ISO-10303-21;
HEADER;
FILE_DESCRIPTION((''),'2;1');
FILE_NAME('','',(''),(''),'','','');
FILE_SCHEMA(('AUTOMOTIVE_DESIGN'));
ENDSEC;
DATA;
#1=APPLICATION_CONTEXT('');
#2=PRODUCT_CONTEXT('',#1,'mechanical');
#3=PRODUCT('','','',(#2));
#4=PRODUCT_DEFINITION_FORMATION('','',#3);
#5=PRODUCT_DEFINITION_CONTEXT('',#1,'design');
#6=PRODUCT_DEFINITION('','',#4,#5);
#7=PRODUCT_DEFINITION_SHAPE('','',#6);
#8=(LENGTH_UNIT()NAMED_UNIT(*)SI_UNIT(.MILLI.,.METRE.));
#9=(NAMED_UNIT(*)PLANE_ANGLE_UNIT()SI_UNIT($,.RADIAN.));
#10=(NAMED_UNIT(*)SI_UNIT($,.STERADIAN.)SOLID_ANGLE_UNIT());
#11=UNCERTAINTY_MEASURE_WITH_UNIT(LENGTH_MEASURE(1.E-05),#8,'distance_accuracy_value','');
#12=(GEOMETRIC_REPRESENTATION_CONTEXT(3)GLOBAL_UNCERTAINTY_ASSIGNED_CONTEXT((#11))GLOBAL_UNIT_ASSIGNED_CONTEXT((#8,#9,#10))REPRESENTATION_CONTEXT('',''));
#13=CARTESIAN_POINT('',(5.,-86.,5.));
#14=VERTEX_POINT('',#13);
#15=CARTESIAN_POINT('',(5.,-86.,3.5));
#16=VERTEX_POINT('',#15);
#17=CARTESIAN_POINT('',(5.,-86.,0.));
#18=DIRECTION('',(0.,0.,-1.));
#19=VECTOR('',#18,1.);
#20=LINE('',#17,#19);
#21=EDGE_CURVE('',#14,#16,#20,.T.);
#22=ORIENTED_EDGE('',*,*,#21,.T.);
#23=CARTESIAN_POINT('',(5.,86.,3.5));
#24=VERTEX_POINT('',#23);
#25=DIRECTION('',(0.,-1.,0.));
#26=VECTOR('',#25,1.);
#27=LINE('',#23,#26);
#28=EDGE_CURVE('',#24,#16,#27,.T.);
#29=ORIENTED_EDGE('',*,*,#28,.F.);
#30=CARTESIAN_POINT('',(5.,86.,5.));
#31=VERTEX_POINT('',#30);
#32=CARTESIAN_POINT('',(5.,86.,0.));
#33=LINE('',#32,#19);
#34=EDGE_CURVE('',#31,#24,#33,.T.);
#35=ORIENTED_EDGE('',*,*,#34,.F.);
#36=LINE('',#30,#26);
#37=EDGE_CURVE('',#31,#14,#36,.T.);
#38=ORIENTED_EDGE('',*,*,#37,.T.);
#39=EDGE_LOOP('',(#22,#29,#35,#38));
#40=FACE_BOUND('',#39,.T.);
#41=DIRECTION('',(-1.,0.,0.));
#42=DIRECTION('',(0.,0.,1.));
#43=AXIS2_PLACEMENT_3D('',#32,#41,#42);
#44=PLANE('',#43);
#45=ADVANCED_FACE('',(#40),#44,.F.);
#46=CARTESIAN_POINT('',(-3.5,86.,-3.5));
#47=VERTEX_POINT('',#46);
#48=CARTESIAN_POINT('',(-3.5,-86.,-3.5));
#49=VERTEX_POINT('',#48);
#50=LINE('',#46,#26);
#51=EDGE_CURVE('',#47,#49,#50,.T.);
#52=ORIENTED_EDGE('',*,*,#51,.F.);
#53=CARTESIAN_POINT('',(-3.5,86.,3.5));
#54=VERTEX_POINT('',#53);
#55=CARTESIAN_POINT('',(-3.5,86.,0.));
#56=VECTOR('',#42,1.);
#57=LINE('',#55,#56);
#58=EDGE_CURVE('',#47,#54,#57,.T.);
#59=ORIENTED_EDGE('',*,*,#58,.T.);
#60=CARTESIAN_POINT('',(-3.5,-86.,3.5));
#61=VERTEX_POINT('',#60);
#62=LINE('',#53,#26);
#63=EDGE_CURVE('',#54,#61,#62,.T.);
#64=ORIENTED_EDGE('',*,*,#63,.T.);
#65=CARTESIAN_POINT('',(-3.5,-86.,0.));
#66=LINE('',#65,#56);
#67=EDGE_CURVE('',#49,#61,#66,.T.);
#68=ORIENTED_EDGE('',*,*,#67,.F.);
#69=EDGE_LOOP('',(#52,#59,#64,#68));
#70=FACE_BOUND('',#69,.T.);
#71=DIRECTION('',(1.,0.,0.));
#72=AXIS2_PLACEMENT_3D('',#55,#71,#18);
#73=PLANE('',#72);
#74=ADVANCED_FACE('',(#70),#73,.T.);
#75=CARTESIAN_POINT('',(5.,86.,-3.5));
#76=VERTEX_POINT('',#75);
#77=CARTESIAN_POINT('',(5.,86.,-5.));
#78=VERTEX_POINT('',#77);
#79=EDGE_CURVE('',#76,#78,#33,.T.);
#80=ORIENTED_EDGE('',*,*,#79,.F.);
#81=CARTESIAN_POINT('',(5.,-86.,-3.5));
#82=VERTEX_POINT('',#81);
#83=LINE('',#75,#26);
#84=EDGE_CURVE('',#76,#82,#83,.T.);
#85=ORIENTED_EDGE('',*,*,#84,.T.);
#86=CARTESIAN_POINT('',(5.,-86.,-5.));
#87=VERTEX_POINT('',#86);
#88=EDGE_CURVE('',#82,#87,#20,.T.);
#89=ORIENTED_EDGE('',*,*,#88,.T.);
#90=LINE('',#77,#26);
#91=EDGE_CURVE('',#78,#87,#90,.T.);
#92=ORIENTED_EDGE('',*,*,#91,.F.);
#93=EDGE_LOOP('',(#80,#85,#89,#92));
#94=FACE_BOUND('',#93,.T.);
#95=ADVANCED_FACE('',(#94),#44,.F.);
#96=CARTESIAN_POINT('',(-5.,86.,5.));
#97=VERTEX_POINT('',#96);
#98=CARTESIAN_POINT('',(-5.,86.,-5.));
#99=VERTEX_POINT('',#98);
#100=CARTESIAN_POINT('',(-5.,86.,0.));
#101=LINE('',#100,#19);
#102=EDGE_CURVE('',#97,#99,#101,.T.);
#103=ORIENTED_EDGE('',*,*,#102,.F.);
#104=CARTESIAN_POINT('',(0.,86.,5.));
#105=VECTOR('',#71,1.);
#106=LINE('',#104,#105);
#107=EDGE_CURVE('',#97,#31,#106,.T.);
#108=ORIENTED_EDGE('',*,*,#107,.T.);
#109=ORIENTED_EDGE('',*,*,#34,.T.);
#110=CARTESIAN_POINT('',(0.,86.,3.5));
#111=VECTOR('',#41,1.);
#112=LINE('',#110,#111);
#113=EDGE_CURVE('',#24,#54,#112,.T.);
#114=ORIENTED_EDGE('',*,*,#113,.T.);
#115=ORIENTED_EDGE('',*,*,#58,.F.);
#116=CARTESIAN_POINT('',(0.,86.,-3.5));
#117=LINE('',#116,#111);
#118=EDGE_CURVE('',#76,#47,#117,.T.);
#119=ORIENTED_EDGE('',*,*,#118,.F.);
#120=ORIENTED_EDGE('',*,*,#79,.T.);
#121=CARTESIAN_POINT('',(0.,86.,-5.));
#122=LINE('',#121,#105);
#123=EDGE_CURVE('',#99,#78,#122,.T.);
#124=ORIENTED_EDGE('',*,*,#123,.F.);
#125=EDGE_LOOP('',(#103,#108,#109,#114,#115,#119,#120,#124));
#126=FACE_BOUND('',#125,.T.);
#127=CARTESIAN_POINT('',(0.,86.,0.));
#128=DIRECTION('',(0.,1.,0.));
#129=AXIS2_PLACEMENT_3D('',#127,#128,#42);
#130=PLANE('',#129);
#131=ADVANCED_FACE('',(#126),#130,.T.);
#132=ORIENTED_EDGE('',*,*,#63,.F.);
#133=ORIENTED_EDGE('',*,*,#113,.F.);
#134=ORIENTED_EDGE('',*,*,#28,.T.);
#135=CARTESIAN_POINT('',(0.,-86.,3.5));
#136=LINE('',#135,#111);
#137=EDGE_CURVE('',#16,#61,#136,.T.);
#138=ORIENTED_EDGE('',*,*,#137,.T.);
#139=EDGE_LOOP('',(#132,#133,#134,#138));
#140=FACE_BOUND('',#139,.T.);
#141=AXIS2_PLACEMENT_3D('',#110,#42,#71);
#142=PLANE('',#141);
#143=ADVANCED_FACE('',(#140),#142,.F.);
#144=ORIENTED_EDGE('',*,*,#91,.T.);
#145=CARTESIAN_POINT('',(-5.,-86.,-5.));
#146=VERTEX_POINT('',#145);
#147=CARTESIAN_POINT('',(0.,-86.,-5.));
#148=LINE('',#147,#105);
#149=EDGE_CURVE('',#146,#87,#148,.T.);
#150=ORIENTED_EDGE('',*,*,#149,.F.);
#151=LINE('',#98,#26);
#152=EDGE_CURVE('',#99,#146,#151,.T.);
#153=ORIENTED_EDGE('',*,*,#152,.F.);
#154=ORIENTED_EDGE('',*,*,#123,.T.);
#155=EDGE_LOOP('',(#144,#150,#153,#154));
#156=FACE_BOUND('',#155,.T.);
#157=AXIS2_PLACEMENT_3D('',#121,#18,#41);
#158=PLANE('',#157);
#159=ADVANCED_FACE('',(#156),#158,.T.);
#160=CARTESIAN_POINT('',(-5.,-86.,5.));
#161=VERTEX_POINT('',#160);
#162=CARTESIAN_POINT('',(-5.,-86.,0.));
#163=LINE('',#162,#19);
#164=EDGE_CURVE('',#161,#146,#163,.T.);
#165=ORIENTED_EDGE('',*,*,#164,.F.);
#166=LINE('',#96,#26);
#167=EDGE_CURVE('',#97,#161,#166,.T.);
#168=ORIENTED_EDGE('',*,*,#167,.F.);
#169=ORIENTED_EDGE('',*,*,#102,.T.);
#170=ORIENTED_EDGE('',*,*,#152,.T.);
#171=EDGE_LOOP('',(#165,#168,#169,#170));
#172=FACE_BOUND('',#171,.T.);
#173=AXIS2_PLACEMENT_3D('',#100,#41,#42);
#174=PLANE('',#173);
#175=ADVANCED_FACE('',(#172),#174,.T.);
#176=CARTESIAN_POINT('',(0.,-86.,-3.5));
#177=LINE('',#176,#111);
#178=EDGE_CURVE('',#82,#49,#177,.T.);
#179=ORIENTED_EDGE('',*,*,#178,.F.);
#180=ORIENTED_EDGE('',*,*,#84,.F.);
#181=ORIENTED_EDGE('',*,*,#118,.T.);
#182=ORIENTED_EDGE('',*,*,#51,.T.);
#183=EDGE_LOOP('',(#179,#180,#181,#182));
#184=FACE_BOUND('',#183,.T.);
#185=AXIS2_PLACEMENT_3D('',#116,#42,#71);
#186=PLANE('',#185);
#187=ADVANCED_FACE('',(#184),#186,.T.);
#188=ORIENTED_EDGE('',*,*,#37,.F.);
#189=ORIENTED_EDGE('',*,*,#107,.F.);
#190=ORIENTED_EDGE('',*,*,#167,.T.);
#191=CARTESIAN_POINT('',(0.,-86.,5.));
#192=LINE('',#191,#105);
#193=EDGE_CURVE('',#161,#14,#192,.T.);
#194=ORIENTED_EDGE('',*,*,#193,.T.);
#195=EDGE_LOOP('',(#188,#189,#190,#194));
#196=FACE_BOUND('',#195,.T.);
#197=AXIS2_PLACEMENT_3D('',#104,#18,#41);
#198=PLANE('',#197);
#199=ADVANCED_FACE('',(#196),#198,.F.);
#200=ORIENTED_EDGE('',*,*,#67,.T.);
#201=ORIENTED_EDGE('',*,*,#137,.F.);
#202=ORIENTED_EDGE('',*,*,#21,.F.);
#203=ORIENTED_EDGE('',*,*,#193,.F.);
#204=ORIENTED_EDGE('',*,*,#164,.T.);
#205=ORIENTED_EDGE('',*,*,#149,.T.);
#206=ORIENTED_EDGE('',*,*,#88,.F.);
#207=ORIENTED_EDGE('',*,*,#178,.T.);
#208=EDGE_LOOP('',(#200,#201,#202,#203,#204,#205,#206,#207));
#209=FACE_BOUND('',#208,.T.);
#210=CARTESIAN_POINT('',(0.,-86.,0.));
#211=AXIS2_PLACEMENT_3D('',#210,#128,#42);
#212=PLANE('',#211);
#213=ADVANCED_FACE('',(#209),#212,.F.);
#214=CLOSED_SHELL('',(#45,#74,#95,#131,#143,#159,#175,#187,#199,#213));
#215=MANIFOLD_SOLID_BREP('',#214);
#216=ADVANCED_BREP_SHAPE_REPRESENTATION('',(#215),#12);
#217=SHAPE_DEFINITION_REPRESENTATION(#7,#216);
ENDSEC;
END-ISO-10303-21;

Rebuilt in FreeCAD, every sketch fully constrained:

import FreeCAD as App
import Part
import Sketcher

V = App.Vector


def add_polygon(sketch, points):
    """Adds a closed chain of lines whose ends are joined by coincident constraints."""
    first, n = sketch.GeometryCount, len(points)
    for a, b in zip(points, points[1:] + points[:1]):
        sketch.addGeometry(Part.LineSegment(App.Vector(*a, 0), App.Vector(*b, 0)), False)
    for i in range(n):
        sketch.addConstraint(Sketcher.Constraint("Coincident", first + i, 2, first + (i + 1) % n, 1))

doc = App.newDocument("Part")
body = doc.addObject("PartDesign::Body", "Body")

sketch1 = body.newObject("Sketcher::SketchObject", "Sketch")
sketch1.AttachmentSupport = (doc.getObject("XZ_Plane"), [""])
sketch1.MapMode = "FlatFace"
add_polygon(sketch1, [(-5, -5), (-5, 5), (5, 5), (5, 3.5), (-3.5, 3.5), (-3.5, -3.5), (5, -3.5), (5, -5)])
sketch1.addConstraint(Sketcher.Constraint("Vertical", 0))
sketch1.addConstraint(Sketcher.Constraint("Horizontal", 1))
sketch1.addConstraint(Sketcher.Constraint("Vertical", 2))
sketch1.addConstraint(Sketcher.Constraint("Horizontal", 3))
sketch1.addConstraint(Sketcher.Constraint("Vertical", 4))
sketch1.addConstraint(Sketcher.Constraint("Horizontal", 5))
sketch1.addConstraint(Sketcher.Constraint("Vertical", 6))
sketch1.addConstraint(Sketcher.Constraint("Horizontal", 7))
sketch1.addConstraint(Sketcher.Constraint("Symmetric", 0, 2, 6, 2, -1, 1))
sketch1.addConstraint(Sketcher.Constraint("Symmetric", 2, 2, 5, 2, -1))
sketch1.addConstraint(Sketcher.Constraint("Equal", 7, 0))
sketch1.addConstraint(Sketcher.Constraint("DistanceX", 1, 1, 1, 2, 10.0))
sketch1.addConstraint(Sketcher.Constraint("DistanceY", 4, 2, 4, 1, 7.0))
sketch1.addConstraint(Sketcher.Constraint("DistanceX", 3, 2, 3, 1, 8.5))
pad1 = body.newObject("PartDesign::Pad", "Pad")
pad1.Profile = sketch1
pad1.Length = 172
pad1.Midplane = True

doc.recompute()
